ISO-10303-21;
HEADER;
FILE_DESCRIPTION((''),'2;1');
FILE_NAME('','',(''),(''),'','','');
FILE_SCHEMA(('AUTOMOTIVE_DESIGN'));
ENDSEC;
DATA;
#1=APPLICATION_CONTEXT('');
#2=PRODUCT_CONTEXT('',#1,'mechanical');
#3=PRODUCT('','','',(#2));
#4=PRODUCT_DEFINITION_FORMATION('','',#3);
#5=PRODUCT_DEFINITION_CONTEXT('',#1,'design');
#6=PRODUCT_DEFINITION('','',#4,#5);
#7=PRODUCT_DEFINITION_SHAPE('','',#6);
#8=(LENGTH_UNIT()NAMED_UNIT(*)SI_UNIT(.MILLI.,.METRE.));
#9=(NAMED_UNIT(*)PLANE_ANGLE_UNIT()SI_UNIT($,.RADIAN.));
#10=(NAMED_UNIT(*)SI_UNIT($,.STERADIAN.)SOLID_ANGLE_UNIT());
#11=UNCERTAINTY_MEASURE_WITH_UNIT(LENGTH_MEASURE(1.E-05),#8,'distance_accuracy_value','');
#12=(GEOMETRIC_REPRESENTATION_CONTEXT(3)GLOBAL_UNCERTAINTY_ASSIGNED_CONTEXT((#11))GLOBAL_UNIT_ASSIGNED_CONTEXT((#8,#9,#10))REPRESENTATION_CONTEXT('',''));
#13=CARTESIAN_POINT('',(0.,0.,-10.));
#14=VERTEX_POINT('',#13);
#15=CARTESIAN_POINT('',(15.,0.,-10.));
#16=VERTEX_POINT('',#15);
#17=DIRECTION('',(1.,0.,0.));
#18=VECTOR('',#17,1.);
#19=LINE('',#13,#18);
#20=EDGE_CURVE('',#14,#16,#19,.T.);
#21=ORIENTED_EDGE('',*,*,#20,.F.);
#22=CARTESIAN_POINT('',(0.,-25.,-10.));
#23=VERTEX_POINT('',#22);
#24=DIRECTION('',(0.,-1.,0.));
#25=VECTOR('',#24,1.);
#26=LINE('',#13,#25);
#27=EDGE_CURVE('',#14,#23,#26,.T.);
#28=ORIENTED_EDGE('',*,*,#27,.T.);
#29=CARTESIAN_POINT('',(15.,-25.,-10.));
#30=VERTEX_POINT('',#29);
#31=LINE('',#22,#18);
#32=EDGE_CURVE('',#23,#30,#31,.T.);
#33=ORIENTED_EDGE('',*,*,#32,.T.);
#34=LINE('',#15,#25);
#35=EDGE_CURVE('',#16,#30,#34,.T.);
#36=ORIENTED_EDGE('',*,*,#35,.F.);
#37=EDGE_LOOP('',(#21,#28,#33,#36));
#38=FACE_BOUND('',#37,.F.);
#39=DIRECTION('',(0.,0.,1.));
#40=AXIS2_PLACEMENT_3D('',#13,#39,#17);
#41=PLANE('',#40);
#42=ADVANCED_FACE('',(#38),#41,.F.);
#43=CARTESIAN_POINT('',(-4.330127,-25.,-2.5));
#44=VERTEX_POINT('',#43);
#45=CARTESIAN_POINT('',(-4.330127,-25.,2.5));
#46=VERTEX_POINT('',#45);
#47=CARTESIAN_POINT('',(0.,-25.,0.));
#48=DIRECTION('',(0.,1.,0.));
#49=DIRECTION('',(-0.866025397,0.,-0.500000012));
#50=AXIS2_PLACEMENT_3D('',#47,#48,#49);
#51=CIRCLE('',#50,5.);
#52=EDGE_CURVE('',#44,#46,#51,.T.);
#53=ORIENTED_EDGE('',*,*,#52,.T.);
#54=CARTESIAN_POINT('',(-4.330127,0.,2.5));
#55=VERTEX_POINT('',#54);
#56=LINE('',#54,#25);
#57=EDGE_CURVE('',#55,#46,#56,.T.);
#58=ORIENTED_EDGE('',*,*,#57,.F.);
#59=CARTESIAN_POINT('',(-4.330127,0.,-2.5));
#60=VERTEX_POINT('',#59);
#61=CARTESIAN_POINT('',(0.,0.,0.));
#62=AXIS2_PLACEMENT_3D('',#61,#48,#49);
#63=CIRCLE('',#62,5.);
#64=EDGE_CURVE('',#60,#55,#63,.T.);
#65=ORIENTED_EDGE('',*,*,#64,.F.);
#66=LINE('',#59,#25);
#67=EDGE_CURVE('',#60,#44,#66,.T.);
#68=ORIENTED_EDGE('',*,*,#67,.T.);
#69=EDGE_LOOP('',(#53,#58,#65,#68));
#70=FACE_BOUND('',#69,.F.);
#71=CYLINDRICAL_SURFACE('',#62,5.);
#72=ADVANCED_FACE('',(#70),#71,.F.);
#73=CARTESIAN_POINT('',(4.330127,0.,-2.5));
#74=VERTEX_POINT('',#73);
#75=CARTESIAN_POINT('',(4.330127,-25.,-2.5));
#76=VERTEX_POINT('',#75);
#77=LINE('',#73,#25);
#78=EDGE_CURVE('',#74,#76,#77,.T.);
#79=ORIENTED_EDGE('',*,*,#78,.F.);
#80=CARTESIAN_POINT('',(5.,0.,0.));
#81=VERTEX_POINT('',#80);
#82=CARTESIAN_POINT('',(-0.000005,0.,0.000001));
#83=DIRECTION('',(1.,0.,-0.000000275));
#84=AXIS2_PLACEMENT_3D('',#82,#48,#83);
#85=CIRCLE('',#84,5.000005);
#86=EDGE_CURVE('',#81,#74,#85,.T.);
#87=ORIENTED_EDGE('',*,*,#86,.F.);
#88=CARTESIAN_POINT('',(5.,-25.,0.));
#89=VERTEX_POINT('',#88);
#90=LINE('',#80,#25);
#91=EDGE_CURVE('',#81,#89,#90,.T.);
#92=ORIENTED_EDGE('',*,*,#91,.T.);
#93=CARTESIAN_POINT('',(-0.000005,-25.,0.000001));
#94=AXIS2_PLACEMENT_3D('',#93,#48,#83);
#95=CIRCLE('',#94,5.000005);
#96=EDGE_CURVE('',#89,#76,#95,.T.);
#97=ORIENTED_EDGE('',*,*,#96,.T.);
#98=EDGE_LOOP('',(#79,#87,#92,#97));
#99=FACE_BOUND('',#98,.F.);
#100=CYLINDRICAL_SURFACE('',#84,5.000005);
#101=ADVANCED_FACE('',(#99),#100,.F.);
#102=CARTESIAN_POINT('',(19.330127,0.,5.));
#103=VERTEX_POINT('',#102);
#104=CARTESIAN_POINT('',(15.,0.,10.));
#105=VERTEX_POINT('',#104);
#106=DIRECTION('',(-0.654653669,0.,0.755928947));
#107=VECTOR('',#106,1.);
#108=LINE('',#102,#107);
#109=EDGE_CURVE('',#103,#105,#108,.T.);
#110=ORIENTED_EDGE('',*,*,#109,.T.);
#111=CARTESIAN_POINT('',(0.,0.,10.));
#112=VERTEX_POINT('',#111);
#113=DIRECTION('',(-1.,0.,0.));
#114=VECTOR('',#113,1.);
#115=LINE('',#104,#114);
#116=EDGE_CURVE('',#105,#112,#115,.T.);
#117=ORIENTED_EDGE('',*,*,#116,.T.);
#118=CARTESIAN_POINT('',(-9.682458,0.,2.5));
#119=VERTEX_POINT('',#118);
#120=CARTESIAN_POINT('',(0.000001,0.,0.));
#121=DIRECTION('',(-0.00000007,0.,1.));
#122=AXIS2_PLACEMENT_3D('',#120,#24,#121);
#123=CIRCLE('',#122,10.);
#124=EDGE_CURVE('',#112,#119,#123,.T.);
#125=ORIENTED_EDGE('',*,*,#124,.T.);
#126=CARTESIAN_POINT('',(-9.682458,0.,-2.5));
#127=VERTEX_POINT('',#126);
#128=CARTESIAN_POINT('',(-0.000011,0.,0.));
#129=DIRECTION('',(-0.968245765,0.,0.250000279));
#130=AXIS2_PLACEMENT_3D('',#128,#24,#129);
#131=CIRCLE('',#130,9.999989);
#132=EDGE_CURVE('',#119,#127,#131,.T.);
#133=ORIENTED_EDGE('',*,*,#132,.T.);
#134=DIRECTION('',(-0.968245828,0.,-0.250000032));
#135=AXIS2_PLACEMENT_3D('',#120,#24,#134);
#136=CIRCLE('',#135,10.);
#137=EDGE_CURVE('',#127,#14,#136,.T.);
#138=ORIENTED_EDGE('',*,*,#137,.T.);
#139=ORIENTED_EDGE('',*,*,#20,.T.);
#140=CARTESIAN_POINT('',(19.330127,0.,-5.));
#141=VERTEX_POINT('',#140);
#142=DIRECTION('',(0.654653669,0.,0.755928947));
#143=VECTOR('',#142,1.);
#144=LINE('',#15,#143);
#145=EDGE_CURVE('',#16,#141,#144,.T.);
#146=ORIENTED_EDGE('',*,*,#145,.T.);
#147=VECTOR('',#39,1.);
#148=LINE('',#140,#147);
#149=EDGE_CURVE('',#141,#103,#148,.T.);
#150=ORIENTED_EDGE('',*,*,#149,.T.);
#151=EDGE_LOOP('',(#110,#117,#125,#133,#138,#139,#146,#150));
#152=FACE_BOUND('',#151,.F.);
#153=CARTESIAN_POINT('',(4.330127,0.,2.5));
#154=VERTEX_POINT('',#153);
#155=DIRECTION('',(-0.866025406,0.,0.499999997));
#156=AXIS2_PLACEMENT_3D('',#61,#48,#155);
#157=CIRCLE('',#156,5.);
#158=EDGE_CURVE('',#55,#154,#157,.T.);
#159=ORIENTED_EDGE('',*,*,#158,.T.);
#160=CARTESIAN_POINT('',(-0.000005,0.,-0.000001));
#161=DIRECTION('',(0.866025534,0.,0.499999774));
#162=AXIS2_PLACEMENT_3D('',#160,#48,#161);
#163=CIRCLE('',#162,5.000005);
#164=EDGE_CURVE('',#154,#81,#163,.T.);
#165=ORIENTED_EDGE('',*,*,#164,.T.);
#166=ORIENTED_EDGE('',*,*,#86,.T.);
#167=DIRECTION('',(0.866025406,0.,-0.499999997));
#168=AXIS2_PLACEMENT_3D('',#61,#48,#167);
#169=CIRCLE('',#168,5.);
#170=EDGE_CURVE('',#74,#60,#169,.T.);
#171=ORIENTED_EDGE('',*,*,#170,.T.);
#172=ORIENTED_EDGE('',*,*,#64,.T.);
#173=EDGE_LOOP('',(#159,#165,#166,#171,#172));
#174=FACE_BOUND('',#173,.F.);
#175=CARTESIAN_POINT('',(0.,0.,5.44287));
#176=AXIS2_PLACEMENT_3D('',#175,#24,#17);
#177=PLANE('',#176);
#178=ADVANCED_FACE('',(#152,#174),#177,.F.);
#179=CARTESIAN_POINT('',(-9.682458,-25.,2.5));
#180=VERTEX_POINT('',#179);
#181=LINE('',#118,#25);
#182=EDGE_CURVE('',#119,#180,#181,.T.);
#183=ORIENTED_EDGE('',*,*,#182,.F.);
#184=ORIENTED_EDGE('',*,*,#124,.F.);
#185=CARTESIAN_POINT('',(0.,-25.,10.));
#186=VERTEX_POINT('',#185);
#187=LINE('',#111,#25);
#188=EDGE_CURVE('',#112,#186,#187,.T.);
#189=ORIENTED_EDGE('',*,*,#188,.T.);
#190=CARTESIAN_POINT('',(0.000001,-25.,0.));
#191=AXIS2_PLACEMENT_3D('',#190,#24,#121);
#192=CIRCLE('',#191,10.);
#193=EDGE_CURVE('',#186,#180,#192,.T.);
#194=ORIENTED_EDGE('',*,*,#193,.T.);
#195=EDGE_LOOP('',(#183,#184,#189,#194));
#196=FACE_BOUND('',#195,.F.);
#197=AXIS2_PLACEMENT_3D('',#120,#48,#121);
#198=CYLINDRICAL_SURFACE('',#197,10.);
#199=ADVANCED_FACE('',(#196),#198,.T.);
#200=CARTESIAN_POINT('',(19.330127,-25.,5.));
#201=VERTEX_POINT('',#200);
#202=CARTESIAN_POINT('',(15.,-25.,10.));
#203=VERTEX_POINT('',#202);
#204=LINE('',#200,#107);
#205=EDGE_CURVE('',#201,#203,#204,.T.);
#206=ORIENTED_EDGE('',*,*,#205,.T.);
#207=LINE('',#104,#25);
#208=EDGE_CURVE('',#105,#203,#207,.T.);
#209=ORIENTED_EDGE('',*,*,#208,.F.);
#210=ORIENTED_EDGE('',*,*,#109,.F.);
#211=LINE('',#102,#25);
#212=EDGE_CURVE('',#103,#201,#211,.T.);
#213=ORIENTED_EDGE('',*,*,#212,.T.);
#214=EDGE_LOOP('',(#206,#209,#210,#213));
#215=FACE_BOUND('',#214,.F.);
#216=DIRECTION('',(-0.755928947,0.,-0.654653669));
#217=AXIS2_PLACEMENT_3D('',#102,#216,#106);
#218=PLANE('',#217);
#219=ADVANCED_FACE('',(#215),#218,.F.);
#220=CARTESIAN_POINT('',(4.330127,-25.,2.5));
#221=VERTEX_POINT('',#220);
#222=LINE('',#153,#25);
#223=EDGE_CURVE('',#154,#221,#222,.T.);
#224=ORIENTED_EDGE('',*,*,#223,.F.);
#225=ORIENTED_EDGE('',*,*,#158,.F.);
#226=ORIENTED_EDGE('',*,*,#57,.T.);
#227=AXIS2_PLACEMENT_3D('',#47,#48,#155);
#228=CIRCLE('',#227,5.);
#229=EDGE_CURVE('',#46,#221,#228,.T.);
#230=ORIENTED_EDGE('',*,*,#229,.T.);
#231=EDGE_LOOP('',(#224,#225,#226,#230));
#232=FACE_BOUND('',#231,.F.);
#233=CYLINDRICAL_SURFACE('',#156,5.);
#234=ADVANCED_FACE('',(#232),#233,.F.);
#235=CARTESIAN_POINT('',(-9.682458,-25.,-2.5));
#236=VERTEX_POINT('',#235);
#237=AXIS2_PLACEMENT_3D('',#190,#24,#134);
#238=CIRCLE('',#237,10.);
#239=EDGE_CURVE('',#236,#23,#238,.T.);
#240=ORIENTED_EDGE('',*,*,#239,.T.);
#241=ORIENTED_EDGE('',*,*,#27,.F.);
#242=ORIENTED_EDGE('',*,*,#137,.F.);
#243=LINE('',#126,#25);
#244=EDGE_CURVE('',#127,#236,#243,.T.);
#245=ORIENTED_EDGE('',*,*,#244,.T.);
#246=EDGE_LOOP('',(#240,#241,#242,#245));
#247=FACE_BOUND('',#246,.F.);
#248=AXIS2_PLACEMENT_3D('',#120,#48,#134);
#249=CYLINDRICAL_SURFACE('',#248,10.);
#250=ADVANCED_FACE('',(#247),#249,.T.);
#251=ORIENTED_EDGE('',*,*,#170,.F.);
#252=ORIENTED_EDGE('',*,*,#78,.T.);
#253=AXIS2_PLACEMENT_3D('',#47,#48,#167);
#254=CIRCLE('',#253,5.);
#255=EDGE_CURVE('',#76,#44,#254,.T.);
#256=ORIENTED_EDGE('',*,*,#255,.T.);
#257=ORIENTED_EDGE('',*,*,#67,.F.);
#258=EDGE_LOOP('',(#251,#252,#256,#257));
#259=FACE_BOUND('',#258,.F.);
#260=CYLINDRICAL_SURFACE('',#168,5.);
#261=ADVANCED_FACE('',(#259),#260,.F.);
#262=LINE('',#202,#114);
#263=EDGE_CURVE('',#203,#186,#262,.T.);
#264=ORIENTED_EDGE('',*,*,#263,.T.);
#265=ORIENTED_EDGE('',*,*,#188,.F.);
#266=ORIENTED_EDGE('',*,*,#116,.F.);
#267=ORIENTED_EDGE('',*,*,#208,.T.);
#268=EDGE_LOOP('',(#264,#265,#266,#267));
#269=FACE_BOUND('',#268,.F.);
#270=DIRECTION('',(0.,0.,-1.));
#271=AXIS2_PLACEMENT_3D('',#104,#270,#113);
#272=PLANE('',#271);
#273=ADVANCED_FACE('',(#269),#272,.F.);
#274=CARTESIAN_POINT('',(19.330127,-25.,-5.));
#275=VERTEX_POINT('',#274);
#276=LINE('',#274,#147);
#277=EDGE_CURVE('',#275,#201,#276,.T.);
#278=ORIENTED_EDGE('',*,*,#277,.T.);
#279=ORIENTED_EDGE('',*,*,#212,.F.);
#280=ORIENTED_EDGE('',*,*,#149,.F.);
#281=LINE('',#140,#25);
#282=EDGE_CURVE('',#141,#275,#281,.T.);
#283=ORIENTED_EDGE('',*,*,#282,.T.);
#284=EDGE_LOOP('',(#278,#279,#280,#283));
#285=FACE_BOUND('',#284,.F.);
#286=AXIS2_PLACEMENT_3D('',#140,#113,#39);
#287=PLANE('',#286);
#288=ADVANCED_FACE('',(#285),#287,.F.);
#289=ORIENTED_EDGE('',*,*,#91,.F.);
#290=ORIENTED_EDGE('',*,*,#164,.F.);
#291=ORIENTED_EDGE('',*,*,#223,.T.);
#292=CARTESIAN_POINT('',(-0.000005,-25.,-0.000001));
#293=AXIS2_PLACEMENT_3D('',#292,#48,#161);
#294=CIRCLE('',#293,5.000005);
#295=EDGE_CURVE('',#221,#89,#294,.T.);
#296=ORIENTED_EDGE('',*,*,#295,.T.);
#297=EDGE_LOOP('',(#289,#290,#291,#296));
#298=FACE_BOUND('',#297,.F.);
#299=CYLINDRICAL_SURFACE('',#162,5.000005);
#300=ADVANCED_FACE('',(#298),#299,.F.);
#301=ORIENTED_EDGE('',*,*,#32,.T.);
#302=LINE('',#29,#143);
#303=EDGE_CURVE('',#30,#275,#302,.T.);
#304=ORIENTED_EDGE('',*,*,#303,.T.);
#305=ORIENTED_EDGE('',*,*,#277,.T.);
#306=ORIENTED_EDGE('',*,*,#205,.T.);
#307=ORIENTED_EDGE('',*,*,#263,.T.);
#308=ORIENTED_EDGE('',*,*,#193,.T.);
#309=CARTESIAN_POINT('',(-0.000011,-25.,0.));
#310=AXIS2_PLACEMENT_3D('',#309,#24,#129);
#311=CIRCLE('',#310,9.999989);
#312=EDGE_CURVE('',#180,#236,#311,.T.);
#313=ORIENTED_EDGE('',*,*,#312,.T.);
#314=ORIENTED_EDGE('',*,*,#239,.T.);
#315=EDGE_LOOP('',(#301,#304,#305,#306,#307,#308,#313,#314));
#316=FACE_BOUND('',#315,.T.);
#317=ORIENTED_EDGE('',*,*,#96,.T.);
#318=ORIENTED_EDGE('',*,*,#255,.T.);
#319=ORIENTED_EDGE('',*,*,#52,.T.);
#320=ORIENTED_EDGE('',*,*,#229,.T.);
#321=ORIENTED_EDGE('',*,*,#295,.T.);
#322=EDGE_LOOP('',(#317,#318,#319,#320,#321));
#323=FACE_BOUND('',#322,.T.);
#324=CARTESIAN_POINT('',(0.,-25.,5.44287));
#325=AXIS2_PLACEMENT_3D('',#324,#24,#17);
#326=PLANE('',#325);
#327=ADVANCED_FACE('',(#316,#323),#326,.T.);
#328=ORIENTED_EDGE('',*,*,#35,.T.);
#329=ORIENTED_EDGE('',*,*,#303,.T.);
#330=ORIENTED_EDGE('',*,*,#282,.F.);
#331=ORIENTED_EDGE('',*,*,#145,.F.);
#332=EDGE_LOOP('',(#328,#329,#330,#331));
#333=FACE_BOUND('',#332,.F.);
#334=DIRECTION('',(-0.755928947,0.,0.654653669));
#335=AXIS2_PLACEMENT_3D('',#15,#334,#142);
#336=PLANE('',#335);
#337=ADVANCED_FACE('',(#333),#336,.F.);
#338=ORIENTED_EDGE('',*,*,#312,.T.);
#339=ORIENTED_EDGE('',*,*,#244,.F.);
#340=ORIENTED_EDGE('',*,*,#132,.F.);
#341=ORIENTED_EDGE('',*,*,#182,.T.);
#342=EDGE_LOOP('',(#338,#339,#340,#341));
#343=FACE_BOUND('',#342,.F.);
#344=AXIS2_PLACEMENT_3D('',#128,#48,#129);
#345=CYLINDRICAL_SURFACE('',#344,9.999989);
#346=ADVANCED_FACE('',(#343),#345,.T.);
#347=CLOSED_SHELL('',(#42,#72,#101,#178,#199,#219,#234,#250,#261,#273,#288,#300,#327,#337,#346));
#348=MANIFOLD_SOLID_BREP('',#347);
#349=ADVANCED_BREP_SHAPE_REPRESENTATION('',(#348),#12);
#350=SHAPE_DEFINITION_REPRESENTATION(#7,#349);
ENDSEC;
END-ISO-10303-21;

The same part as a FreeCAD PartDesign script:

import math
import FreeCAD as App
import Part
import Sketcher
from FreeCAD import Vector
Q = App.Units.Quantity

doc = App.newDocument("Part")
body = doc.addObject("PartDesign::Body", "Body")

sketch1 = doc.addObject("Sketcher::SketchObject", "Sketch")
body.addObject(sketch1)
sketch1.AttachmentSupport = (doc.XZ_Plane, [""])
sketch1.MapMode = "FlatFace"
sketch1.addGeometry([
    Part.ArcOfCircle(Part.Circle(Vector(0.000001, 0, 0), Vector(0, 0, 1), 10), math.radians(-165.522486), math.radians(-90.000004)),
    Part.LineSegment(Vector(0, -10, 0), Vector(15, -10, 0)),
    Part.LineSegment(Vector(15, -10, 0), Vector(19.330127, -5, 0)),
    Part.LineSegment(Vector(19.330127, -5, 0), Vector(19.330127, 5, 0)),
    Part.LineSegment(Vector(19.330127, 5, 0), Vector(15, 10, 0)),
    Part.LineSegment(Vector(15, 10, 0), Vector(0, 10, 0)),
    Part.ArcOfCircle(Part.Circle(Vector(0.000001, 0, 0), Vector(0, 0, 1), 10), math.radians(90.000004), math.radians(165.522486)),
    Part.ArcOfCircle(Part.Circle(Vector(-0.000011, 0, 0), Vector(0, 0, 1), 9.999989), math.radians(165.522471), math.radians(194.477529)),
    Part.ArcOfCircle(Part.Circle(Vector(0, 0, 0), Vector(0, 0, 1), 5), math.radians(30), math.radians(150)),
    Part.ArcOfCircle(Part.Circle(Vector(-0.000005, -0.000001, 0), Vector(0, 0, 1), 5.000005), math.radians(0.000016), math.radians(29.999985)),
    Part.ArcOfCircle(Part.Circle(Vector(-0.000005, 0.000001, 0), Vector(0, 0, 1), 5.000005), math.radians(-29.999985), math.radians(-0.000016)),
    Part.ArcOfCircle(Part.Circle(Vector(0, 0, 0), Vector(0, 0, 1), 5), math.radians(-150), math.radians(-30)),
    Part.ArcOfCircle(Part.Circle(Vector(0, 0, 0), Vector(0, 0, 1), 5), math.radians(149.999999), math.radians(210.000001)),
], False)
sketch1.addConstraint([
    Sketcher.Constraint("Tangent", 0, 2, 1, 1),
    Sketcher.Constraint("Coincident", 1, 2, 2, 1),
    Sketcher.Constraint("Coincident", 2, 2, 3, 1),
    Sketcher.Constraint("Coincident", 3, 2, 4, 1),
    Sketcher.Constraint("Coincident", 4, 2, 5, 1),
    Sketcher.Constraint("Tangent", 5, 2, 6, 1),
    Sketcher.Constraint("Tangent", 6, 2, 7, 1),
    Sketcher.Constraint("Tangent", 7, 2, 0, 1),
    Sketcher.Constraint("Tangent", 8, 1, 9, 2),
    Sketcher.Constraint("Tangent", 9, 1, 10, 2),
    Sketcher.Constraint("Tangent", 10, 1, 11, 2),
    Sketcher.Constraint("Tangent", 11, 1, 12, 2),
    Sketcher.Constraint("Tangent", 12, 1, 8, 2),
    Sketcher.Constraint("Horizontal", 1),
    Sketcher.Constraint("Vertical", 3),
    Sketcher.Constraint("Horizontal", 5),
    Sketcher.Constraint("Coincident", 0, 3, -1, 1),
    Sketcher.Constraint("Coincident", 6, 3, -1, 1),
    Sketcher.Constraint("Coincident", 8, 3, -1, 1),
    Sketcher.Constraint("Coincident", 10, 3, -1, 1),
    Sketcher.Constraint("PointOnObject", 9, 1, -1),
    Sketcher.Constraint("Horizontal", 6, 2, 8, 1),
    Sketcher.Constraint("Horizontal", 7, 2, 10, 1),
    Sketcher.Constraint("Horizontal", 10, 1, 11, 1),
    Sketcher.Constraint("Horizontal", 8, 1, 12, 1),
    Sketcher.Constraint("Vertical", 1, 2, 4, 2),
    Sketcher.Constraint("Vertical", 6, 2, 7, 2),
    Sketcher.Constraint("Equal", 2, 4),
    Sketcher.Constraint("Radius", 0, Q("10 mm")),
    Sketcher.Constraint("Radius", 8, Q("5 mm")),
    Sketcher.Constraint("DistanceX", 1, 1, 1, 2, Q("15 mm")),
    Sketcher.Constraint("DistanceY", 3, 1, 3, 2, Q("10 mm")),
    Sketcher.Constraint("DistanceY", 7, 2, 6, 2, Q("5 mm")),
    Sketcher.Constraint("Distance", 2, Q("6.614378 mm")),
])
pad1 = doc.addObject("PartDesign::Pad", "Pad")
body.addObject(pad1)
pad1.Profile = sketch1
pad1.Length = 25

doc.recompute()
